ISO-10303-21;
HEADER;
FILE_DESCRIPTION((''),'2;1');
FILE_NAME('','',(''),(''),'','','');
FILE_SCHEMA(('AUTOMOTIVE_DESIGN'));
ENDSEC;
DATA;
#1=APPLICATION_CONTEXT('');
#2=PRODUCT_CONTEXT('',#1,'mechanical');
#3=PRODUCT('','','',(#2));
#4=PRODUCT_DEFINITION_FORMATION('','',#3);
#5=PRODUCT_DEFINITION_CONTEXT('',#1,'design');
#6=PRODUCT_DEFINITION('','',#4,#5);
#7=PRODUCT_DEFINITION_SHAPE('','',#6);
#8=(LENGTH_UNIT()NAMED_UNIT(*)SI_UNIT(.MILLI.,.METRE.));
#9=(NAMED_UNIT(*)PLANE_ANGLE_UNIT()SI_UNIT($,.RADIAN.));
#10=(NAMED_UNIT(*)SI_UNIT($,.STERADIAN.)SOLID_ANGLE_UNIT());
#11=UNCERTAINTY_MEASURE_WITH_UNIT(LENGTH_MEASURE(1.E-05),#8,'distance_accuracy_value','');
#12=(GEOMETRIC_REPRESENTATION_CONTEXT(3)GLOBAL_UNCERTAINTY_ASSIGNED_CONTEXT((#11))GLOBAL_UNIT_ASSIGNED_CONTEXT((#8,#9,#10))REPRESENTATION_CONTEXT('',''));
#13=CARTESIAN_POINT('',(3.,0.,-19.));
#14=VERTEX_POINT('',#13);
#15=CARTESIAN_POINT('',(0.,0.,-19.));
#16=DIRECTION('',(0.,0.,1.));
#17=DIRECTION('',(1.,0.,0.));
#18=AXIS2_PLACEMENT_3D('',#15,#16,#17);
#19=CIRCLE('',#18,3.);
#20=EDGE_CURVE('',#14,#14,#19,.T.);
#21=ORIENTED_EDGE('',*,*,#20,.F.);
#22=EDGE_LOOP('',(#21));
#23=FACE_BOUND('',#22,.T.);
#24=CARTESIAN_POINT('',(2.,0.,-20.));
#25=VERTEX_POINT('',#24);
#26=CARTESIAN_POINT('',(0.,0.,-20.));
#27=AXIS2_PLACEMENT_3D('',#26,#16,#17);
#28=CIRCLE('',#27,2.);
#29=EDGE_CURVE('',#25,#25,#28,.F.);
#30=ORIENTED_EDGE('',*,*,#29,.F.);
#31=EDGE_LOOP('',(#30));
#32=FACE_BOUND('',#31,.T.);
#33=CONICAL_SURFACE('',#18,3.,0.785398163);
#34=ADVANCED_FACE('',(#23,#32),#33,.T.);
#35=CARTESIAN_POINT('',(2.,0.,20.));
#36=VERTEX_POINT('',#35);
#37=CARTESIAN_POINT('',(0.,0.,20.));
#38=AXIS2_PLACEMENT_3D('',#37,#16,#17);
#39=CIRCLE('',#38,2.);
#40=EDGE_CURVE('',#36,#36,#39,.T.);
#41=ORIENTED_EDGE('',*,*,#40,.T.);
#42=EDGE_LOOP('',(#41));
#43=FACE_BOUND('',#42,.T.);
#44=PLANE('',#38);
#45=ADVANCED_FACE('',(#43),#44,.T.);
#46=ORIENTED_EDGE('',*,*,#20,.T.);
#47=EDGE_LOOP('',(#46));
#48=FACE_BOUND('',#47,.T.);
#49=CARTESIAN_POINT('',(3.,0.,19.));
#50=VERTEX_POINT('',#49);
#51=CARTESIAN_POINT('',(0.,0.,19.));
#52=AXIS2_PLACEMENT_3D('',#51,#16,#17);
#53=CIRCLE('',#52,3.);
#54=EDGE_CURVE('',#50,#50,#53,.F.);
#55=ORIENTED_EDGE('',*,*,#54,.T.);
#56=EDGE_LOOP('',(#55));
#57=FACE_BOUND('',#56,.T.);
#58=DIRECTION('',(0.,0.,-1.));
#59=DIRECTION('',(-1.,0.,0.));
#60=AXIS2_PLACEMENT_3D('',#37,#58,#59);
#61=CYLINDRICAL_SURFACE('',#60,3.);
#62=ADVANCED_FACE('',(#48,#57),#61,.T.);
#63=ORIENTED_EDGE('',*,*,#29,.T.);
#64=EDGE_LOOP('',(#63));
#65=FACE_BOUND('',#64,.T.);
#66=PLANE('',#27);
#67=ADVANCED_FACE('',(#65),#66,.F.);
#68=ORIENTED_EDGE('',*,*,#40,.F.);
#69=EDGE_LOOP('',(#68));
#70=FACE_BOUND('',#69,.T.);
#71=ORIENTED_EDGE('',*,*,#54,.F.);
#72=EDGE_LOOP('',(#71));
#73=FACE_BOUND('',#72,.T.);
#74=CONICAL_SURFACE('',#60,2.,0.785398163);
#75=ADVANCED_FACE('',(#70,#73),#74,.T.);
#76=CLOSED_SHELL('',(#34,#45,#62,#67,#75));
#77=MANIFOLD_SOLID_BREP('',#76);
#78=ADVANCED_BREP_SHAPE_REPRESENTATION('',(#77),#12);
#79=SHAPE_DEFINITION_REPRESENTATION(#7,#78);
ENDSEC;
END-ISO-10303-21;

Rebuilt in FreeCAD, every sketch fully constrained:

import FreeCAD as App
import Part
import Sketcher

V = App.Vector


def edges_at(feature, points):
    """Names of the edges that pass closest to the given points."""
    edges = feature.Shape.Edges
    near = lambda p: min(range(len(edges)), key=lambda i: edges[i].distToShape(Part.Vertex(*p))[0])
    return sorted({f"Edge{near(p) + 1}" for p in points})

doc = App.newDocument("Part")
body = doc.addObject("PartDesign::Body", "Body")

sketch1 = body.newObject("Sketcher::SketchObject", "Sketch")
sketch1.AttachmentSupport = (doc.getObject("XY_Plane"), [""])
sketch1.MapMode = "FlatFace"
sketch1.addGeometry(Part.Circle(V(0, 0, 0), V(0, 0, 1), 3), False)
sketch1.addConstraint(Sketcher.Constraint("Coincident", 0, 3, -1, 1))
sketch1.addConstraint(Sketcher.Constraint("Diameter", 0, 6.0))
pad1 = body.newObject("PartDesign::Pad", "Pad")
pad1.Profile = sketch1
pad1.Length = 40
pad1.Midplane = True
doc.recompute()

chamfer = body.newObject("PartDesign::Chamfer", "Chamfer")
chamfer.Base = (pad1, edges_at(pad1, [(-3, 0, -20), (-3, 0, 20)]))
chamfer.Size = 1

doc.recompute()
